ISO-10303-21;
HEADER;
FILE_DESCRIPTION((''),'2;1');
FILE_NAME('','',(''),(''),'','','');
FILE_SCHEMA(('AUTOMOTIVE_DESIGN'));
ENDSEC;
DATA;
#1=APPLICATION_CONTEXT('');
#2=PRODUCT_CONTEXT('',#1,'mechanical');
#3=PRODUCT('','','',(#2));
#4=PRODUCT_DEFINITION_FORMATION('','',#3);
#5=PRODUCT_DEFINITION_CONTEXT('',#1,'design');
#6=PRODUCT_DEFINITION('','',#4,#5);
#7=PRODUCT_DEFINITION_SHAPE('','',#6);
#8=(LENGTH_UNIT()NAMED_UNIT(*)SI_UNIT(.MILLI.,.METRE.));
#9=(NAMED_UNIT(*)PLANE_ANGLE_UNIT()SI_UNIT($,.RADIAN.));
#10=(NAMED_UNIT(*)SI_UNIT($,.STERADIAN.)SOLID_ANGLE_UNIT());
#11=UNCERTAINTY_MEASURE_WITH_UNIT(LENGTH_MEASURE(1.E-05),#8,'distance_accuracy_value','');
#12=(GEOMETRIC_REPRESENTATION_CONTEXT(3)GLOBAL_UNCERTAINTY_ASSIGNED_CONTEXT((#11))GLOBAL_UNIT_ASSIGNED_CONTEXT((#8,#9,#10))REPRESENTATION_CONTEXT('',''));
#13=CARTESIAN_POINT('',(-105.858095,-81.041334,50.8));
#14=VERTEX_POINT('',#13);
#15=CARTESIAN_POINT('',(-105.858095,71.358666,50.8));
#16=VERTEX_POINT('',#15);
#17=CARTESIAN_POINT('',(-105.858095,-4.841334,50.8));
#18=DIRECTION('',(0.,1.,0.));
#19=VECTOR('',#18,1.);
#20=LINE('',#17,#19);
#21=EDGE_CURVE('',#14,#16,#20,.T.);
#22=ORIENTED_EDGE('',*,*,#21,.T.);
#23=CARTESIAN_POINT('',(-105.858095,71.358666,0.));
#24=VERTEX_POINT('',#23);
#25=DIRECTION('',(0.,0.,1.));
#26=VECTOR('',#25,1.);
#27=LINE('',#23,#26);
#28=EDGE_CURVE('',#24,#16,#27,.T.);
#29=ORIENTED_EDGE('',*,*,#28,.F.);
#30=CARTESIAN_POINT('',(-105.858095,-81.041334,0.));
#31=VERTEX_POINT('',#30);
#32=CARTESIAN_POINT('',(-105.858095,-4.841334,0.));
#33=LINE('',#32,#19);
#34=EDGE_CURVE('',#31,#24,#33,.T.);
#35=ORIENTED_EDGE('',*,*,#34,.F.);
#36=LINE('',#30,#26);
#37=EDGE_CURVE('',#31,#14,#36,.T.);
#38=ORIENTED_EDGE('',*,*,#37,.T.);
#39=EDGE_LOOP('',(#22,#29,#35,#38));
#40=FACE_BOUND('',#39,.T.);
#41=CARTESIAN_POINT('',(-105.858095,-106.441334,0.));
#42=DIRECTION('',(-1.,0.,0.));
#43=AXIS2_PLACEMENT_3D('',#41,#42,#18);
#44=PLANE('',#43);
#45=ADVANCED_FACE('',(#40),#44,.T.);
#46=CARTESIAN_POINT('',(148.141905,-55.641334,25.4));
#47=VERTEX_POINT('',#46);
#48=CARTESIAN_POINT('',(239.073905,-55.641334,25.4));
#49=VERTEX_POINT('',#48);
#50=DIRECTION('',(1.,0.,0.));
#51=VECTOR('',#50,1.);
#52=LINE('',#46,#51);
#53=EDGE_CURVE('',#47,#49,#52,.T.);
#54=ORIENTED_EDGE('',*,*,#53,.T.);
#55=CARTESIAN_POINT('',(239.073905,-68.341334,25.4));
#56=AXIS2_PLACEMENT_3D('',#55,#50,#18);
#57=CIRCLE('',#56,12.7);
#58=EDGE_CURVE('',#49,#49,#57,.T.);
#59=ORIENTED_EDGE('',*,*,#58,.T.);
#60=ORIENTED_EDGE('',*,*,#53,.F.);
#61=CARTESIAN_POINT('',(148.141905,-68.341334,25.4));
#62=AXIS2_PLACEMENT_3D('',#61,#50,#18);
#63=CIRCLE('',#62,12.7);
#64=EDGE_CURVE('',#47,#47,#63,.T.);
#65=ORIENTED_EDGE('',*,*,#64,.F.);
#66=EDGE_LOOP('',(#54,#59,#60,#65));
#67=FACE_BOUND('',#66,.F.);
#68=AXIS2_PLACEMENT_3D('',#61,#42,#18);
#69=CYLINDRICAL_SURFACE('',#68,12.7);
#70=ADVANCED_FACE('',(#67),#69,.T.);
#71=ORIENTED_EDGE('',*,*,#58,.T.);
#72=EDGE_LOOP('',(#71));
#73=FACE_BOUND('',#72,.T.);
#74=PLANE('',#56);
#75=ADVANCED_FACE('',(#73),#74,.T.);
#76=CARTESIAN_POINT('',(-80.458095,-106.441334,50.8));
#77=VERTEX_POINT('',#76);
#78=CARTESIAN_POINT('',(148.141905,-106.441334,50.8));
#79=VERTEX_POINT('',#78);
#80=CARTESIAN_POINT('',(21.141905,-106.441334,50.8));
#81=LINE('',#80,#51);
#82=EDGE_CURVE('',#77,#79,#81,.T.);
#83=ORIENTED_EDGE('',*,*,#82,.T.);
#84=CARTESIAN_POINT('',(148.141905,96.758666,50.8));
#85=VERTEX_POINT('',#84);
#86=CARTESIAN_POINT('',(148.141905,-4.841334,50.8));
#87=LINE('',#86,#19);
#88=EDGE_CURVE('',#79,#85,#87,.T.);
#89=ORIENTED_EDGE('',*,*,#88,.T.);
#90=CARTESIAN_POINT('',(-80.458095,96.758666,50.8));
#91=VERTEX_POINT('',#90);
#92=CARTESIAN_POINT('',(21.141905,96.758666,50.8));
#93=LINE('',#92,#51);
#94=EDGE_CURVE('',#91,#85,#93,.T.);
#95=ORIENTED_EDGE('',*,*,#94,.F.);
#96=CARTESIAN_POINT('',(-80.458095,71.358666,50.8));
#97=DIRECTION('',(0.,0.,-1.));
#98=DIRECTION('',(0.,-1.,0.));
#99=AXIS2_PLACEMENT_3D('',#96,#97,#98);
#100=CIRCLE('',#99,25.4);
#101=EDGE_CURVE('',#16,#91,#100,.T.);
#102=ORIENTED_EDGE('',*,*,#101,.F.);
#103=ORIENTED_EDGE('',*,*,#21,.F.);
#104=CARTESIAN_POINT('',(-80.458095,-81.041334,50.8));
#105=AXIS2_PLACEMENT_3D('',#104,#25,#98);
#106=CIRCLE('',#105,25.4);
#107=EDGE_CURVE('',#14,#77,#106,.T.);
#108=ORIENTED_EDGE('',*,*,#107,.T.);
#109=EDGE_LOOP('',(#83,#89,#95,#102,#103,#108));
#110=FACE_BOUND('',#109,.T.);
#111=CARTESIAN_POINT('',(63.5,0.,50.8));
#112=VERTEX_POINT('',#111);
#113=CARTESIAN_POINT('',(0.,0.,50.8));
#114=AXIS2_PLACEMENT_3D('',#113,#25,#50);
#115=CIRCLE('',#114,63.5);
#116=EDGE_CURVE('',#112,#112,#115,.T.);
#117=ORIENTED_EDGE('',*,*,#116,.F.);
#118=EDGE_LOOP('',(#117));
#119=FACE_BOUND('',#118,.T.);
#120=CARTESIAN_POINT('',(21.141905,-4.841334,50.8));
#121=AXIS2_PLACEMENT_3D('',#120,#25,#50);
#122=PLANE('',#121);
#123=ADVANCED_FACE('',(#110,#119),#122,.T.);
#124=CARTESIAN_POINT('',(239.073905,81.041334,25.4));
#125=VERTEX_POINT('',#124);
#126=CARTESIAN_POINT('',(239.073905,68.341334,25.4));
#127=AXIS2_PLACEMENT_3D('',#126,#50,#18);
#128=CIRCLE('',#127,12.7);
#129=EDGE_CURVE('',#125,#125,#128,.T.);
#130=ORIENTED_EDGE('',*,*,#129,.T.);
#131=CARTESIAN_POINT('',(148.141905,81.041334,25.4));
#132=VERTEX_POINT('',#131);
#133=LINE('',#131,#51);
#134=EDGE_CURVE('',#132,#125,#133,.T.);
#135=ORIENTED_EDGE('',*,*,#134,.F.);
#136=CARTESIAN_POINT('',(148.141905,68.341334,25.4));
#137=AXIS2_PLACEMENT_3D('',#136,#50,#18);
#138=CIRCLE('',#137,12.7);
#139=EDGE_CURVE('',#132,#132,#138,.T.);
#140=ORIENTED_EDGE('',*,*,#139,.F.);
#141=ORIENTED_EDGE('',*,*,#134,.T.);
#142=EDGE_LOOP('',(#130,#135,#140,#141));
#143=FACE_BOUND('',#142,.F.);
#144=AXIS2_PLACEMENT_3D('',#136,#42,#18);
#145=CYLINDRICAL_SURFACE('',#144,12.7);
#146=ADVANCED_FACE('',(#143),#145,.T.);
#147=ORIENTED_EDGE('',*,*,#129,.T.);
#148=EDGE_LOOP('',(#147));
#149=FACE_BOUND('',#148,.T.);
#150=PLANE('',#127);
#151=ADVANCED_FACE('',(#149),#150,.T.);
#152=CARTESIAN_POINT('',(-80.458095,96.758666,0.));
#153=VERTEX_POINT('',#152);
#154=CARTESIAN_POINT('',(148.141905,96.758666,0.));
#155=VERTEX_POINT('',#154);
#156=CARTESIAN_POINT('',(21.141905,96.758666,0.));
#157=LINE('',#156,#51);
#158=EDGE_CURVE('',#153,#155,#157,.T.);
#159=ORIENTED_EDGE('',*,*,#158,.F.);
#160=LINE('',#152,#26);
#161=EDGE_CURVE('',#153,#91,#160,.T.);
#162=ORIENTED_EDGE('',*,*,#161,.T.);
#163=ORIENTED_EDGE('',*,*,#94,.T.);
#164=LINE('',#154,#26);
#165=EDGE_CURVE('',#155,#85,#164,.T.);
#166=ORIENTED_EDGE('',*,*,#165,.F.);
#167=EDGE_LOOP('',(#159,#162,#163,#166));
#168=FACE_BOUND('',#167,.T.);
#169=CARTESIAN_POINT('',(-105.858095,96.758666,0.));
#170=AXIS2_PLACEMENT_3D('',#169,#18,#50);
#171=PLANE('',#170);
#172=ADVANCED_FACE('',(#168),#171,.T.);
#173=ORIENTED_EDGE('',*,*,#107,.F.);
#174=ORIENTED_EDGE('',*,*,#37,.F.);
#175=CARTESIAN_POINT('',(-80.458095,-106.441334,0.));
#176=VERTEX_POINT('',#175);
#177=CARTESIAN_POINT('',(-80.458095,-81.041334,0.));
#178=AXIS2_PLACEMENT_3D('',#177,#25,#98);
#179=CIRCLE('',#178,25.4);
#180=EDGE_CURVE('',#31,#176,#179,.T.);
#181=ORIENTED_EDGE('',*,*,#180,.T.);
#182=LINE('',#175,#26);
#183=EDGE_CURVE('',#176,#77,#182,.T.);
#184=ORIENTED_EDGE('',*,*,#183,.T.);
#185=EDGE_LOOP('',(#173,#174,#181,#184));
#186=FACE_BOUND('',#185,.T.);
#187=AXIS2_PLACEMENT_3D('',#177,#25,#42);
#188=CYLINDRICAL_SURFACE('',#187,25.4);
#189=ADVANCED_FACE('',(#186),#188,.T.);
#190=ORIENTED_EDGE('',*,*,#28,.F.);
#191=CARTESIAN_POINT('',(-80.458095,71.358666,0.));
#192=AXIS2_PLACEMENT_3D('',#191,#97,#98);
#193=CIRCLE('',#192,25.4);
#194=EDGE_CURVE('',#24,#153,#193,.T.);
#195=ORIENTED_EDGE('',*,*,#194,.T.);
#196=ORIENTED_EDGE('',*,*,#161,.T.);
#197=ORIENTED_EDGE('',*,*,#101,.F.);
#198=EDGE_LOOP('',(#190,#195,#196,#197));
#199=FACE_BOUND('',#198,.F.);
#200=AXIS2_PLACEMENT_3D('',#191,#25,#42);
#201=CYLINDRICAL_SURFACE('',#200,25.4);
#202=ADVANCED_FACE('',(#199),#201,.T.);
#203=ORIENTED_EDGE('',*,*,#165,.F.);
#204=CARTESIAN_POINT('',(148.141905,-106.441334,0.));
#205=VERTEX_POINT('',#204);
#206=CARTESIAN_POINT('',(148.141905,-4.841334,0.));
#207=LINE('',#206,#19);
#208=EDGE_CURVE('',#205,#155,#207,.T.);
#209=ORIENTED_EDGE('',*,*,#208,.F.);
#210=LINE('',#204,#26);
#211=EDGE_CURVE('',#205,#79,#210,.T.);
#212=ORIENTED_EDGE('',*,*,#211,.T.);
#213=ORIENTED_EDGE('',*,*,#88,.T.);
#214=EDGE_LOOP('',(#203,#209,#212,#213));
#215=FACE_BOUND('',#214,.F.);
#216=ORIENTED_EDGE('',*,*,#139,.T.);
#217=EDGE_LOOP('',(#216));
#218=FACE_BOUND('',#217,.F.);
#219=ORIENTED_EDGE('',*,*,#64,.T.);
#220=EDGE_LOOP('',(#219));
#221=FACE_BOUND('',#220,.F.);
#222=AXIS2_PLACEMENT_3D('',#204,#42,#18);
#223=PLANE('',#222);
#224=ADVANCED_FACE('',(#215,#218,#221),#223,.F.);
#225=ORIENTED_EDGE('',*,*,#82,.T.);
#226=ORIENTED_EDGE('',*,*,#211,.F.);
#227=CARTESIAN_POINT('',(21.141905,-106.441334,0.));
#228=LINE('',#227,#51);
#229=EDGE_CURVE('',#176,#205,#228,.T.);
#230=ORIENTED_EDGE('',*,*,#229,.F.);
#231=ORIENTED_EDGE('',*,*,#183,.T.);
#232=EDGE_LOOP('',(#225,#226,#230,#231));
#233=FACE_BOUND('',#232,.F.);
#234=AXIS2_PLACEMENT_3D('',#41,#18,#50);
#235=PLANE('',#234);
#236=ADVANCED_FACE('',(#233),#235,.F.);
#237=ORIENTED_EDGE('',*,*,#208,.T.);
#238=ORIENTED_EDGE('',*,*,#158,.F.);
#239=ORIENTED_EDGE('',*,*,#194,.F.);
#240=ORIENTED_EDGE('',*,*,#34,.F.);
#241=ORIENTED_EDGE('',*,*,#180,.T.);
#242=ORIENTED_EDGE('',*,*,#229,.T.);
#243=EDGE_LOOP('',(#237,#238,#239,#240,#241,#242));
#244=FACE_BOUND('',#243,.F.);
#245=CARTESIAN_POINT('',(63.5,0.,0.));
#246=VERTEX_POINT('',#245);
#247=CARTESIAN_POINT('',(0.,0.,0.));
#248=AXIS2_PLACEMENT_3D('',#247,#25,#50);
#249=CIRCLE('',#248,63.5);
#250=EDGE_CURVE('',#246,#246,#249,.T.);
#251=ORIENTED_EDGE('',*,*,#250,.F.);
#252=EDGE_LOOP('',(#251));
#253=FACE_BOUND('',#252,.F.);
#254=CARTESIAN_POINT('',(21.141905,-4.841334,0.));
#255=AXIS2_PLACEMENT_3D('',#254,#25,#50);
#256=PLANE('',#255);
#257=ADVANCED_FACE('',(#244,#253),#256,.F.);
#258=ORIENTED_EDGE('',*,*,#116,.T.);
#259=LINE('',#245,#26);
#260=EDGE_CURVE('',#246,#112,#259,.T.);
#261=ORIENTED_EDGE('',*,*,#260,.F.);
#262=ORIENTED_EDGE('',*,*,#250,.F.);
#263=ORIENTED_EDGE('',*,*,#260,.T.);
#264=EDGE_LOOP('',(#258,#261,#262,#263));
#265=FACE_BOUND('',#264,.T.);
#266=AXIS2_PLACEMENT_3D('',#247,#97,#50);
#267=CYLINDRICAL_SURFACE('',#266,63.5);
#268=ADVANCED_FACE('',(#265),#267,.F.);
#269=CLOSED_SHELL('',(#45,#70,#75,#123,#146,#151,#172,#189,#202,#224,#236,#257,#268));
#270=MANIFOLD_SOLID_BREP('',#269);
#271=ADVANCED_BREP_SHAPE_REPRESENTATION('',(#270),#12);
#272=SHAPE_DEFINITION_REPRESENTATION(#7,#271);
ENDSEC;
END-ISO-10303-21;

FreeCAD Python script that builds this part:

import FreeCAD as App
import Part
import Sketcher

V = App.Vector
Q = App.Units.Quantity


def edges_at(feature, points):
    """Names of the edges that pass closest to the given points."""
    edges = feature.Shape.Edges
    near = lambda p: min(range(len(edges)), key=lambda i: edges[i].distToShape(Part.Vertex(*p))[0])
    return sorted({f"Edge{near(p) + 1}" for p in points})


def add_polygon(sketch, points):
    """Adds a closed chain of lines whose ends are joined by coincident constraints."""
    first, n = sketch.GeometryCount, len(points)
    for a, b in zip(points, points[1:] + points[:1]):
        sketch.addGeometry(Part.LineSegment(App.Vector(*a, 0), App.Vector(*b, 0)), False)
    for i in range(n):
        sketch.addConstraint(Sketcher.Constraint("Coincident", first + i, 2, first + (i + 1) % n, 1))

doc = App.newDocument("Part")
params = doc.addObject("Spreadsheet::Sheet", "Params")
for row, (alias, value) in enumerate([
    ("sketch1_diameter", "5 in"),
    ("sketch1_width", "10 in"),
    ("sketch1_height", "8 in"),
    ("pad1_length", "2 in"),
    ("fillet_radius", "1 in"),
    ("sketch2_diameter", "1 in"),
    ("pad2_length", "3.58 in"),
], start=1):
    params.set(f"A{row}", alias)
    params.set(f"B{row}", "=" + value)
    params.setAlias(f"B{row}", alias)

body = doc.addObject("PartDesign::Body", "Body")

# Sketch on XY plane
sketch1 = body.newObject("Sketcher::SketchObject", "Sketch")
sketch1.AttachmentSupport = (doc.getObject("XY_Plane"), [""])
sketch1.MapMode = "FlatFace"
add_polygon(sketch1, [(-105.858095, 96.758666), (-105.858095, -106.441334), (148.141905, -106.441334), (148.141905, 96.758666)])  # lines 0-3
sketch1.addGeometry(Part.Circle(V(0, 0, 0), V(0, 0, 1), 63.5), False)  # 4
sketch1.addConstraint([
    Sketcher.Constraint("Vertical", 0),
    Sketcher.Constraint("Horizontal", 1),
    Sketcher.Constraint("Vertical", 2),
    Sketcher.Constraint("Horizontal", 3),
    Sketcher.Constraint("Coincident", 4, 3, -1, 1),
    Sketcher.Constraint("Diameter", 4, Q("5 in")),
    Sketcher.Constraint("DistanceX", 1, 1, 1, 2, Q("10 in")),
    Sketcher.Constraint("DistanceY", 0, 2, 0, 1, Q("8 in")),
    Sketcher.Constraint("DistanceX", 0, 2, -1, 1, 105.858095),
    Sketcher.Constraint("DistanceY", 0, 2, -1, 1, 106.441334),
])
sketch1.setExpression("Constraints[9]", "Params.sketch1_diameter")
sketch1.setExpression("Constraints[10]", "Params.sketch1_width")
sketch1.setExpression("Constraints[11]", "Params.sketch1_height")
pad1 = body.newObject("PartDesign::Pad", "Pad")
pad1.Profile = sketch1
pad1.setExpression("Length", "Params.pad1_length")
doc.recompute()

fillet = body.newObject("PartDesign::Fillet", "Fillet")
fillet.Base = (pad1, edges_at(pad1, [(-105.858, 96.759, 25.4), (-105.858, -106.441, 25.4)]))
fillet.setExpression("Radius", "Params.fillet_radius")

# Sketch on YZ plane
sketch2 = body.newObject("Sketcher::SketchObject", "Sketch001")
sketch2.AttachmentSupport = (doc.getObject("YZ_Plane"), [""])
sketch2.MapMode = "FlatFace"
sketch2.AttachmentOffset = App.Placement(V(0, 0, 148.141905), App.Rotation())
sketch2.addGeometry([
    Part.Circle(V(-68.341334, 25.4, 0), V(0, 0, 1), 12.7),
    Part.Circle(V(68.341334, 25.4, 0), V(0, 0, 1), 12.7),
], False)
sketch2.addConstraint([
    Sketcher.Constraint("Equal", 0, 1),
    Sketcher.Constraint("Symmetric", 0, 3, 1, 3, -2),
    Sketcher.Constraint("Diameter", 0, Q("1 in")),
    Sketcher.Constraint("DistanceY", -1, 1, 0, 3, Q("1 in")),
    Sketcher.Constraint("DistanceX", 0, 3, 1, 3, 136.682668),
])
sketch2.setExpression("Constraints[2]", "Params.sketch2_diameter")
pad2 = body.newObject("PartDesign::Pad", "Pad001")
pad2.Profile = sketch2
pad2.setExpression("Length", "Params.pad2_length")

doc.recompute()
